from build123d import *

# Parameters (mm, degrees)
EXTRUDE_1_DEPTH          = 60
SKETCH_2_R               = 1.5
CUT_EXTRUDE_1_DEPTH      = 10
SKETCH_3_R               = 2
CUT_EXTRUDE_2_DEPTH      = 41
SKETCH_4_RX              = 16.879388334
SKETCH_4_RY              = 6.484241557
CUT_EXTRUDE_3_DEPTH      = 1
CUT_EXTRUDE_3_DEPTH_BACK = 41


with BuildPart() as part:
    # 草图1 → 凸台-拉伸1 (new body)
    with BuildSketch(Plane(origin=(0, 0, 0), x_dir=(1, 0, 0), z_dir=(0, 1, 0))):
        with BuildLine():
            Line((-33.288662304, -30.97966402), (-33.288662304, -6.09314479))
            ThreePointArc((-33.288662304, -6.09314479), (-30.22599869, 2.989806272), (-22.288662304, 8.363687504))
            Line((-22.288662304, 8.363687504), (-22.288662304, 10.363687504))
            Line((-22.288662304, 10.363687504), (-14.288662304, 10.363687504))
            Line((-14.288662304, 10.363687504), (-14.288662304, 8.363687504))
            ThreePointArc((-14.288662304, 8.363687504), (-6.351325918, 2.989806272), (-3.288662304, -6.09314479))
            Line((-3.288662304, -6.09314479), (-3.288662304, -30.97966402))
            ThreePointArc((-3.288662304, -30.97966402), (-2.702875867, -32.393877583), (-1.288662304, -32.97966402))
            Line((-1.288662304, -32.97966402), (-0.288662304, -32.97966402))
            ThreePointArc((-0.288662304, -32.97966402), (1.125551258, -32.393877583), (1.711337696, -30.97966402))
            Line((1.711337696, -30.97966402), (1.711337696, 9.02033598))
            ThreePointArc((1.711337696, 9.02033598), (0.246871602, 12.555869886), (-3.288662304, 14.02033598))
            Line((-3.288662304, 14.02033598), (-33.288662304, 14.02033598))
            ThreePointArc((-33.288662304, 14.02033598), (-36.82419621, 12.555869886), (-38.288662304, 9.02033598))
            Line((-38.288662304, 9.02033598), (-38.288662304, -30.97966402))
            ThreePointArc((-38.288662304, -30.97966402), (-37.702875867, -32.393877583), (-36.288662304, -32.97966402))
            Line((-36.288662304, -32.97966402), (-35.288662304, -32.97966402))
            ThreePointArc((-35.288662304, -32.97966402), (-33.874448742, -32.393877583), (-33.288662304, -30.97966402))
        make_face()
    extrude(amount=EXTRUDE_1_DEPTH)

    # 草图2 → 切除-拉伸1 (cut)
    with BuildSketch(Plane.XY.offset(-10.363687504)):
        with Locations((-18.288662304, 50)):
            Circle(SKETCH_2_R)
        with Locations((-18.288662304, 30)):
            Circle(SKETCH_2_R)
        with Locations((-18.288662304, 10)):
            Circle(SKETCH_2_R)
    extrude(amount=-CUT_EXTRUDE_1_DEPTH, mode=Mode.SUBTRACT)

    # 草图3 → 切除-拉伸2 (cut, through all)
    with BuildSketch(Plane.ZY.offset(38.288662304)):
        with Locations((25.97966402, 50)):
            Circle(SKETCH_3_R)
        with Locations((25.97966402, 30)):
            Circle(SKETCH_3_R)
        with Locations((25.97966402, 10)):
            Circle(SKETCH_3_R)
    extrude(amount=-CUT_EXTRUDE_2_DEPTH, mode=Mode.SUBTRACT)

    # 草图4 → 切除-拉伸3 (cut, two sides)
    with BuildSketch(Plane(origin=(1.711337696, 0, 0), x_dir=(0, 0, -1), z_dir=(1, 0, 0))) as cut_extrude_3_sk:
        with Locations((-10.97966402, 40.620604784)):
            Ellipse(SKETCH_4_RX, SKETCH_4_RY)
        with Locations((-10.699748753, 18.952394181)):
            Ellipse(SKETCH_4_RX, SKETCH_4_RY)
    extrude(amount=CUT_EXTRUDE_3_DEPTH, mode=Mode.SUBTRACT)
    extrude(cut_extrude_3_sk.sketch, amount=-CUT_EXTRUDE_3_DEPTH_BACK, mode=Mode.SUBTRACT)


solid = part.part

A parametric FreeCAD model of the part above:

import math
import FreeCAD as App
import Part
import Sketcher

V = App.Vector

doc = App.newDocument("Part")
body = doc.addObject("PartDesign::Body", "Body")

sketch1 = doc.addObject("Sketcher::SketchObject", "Sketch")
body.addObject(sketch1)
sketch1.AttachmentSupport = (doc.XZ_Plane, [""])
sketch1.MapMode = "FlatFace"
sketch1.addGeometry(Part.LineSegment(V(-33.3, 31, 0), V(-33.3, 6.1, 0)), False)
sketch1.addGeometry(Part.ArcOfCircle(Part.Circle(V(-18.3, 6.1, 0), V(0, 0, 1), 15), math.radians(-180), math.radians(-105)), False)
sketch1.addGeometry(Part.LineSegment(V(-22.3, -8.4, 0), V(-22.3, -10.4, 0)), False)
sketch1.addGeometry(Part.LineSegment(V(-22.3, -10.4, 0), V(-14.3, -10.4, 0)), False)
sketch1.addGeometry(Part.LineSegment(V(-14.3, -10.4, 0), V(-14.3, -8.4, 0)), False)
sketch1.addGeometry(Part.ArcOfCircle(Part.Circle(V(-18.3, 6.1, 0), V(0, 0, 1), 15), math.radians(-75), math.radians(0)), False)
sketch1.addGeometry(Part.LineSegment(V(-3.3, 6.1, 0), V(-3.3, 31, 0)), False)
sketch1.addGeometry(Part.ArcOfCircle(Part.Circle(V(-1.3, 31, 0), V(0, 0, 1), 2), math.radians(90), math.radians(180)), False)
sketch1.addGeometry(Part.LineSegment(V(-1.3, 33, 0), V(-0.3, 33, 0)), False)
sketch1.addGeometry(Part.ArcOfCircle(Part.Circle(V(-0.3, 31, 0), V(0, 0, 1), 2), math.radians(0), math.radians(90)), False)
sketch1.addGeometry(Part.LineSegment(V(1.7, 31, 0), V(1.7, -9, 0)), False)
sketch1.addGeometry(Part.ArcOfCircle(Part.Circle(V(-3.3, -9, 0), V(0, 0, 1), 5), math.radians(-90), math.radians(0)), False)
sketch1.addGeometry(Part.LineSegment(V(-3.3, -14, 0), V(-33.3, -14, 0)), False)
sketch1.addGeometry(Part.ArcOfCircle(Part.Circle(V(-33.3, -9, 0), V(0, 0, 1), 5), math.radians(180), math.radians(270)), False)
sketch1.addGeometry(Part.LineSegment(V(-38.3, -9, 0), V(-38.3, 31, 0)), False)
sketch1.addGeometry(Part.ArcOfCircle(Part.Circle(V(-36.3, 31, 0), V(0, 0, 1), 2), math.radians(90), math.radians(180)), False)
sketch1.addGeometry(Part.LineSegment(V(-36.3, 33, 0), V(-35.3, 33, 0)), False)
sketch1.addGeometry(Part.ArcOfCircle(Part.Circle(V(-35.3, 31, 0), V(0, 0, 1), 2), math.radians(0), math.radians(90)), False)
sketch1.addConstraint(Sketcher.Constraint("Tangent", 0, 2, 1, 1))
sketch1.addConstraint(Sketcher.Constraint("Coincident", 1, 2, 2, 1))
sketch1.addConstraint(Sketcher.Constraint("Coincident", 2, 2, 3, 1))
sketch1.addConstraint(Sketcher.Constraint("Coincident", 3, 2, 4, 1))
sketch1.addConstraint(Sketcher.Constraint("Coincident", 4, 2, 5, 1))
sketch1.addConstraint(Sketcher.Constraint("Tangent", 5, 2, 6, 1))
sketch1.addConstraint(Sketcher.Constraint("Tangent", 6, 2, 7, 2))
sketch1.addConstraint(Sketcher.Constraint("Tangent", 7, 1, 8, 1))
sketch1.addConstraint(Sketcher.Constraint("Tangent", 8, 2, 9, 2))
sketch1.addConstraint(Sketcher.Constraint("Tangent", 9, 1, 10, 1))
sketch1.addConstraint(Sketcher.Constraint("Tangent", 10, 2, 11, 2))
sketch1.addConstraint(Sketcher.Constraint("Tangent", 11, 1, 12, 1))
sketch1.addConstraint(Sketcher.Constraint("Tangent", 12, 2, 13, 2))
sketch1.addConstraint(Sketcher.Constraint("Tangent", 13, 1, 14, 1))
sketch1.addConstraint(Sketcher.Constraint("Tangent", 14, 2, 15, 2))
sketch1.addConstraint(Sketcher.Constraint("Tangent", 15, 1, 16, 1))
sketch1.addConstraint(Sketcher.Constraint("Tangent", 16, 2, 17, 2))
sketch1.addConstraint(Sketcher.Constraint("Tangent", 17, 1, 0, 1))
sketch1.addConstraint(Sketcher.Constraint("Vertical", 0))
sketch1.addConstraint(Sketcher.Constraint("Vertical", 2))
sketch1.addConstraint(Sketcher.Constraint("Horizontal", 3))
sketch1.addConstraint(Sketcher.Constraint("Vertical", 4))
sketch1.addConstraint(Sketcher.Constraint("Vertical", 6))
sketch1.addConstraint(Sketcher.Constraint("Horizontal", 8))
sketch1.addConstraint(Sketcher.Constraint("Vertical", 10))
sketch1.addConstraint(Sketcher.Constraint("Horizontal", 12))
sketch1.addConstraint(Sketcher.Constraint("Vertical", 14))
sketch1.addConstraint(Sketcher.Constraint("Horizontal", 16))
sketch1.addConstraint(Sketcher.Constraint("Coincident", 5, 3, 1, 3))
sketch1.addConstraint(Sketcher.Constraint("Equal", 1, 5))
sketch1.addConstraint(Sketcher.Constraint("Equal", 7, 9))
sketch1.addConstraint(Sketcher.Constraint("Equal", 11, 13))
sketch1.addConstraint(Sketcher.Constraint("Equal", 9, 15))
sketch1.addConstraint(Sketcher.Constraint("Equal", 15, 17))
sketch1.addConstraint(Sketcher.Constraint("Horizontal", 9, 3, 15, 3))
sketch1.addConstraint(Sketcher.Constraint("Horizontal", 1, 2, 4, 2))
sketch1.addConstraint(Sketcher.Constraint("Vertical", 13, 3, 0, 2))
sketch1.addConstraint(Sketcher.Constraint("Vertical", 11, 3, 5, 2))
sketch1.addConstraint(Sketcher.Constraint("Radius", 1, 15.0))
sketch1.addConstraint(Sketcher.Constraint("Radius", 7, 2.0))
sketch1.addConstraint(Sketcher.Constraint("Radius", 11, 5.0))
sketch1.addConstraint(Sketcher.Constraint("DistanceX", 3, 1, 3, 2, 8.0))
sketch1.addConstraint(Sketcher.Constraint("DistanceY", 2, 2, 2, 1, 2.0))
sketch1.addConstraint(Sketcher.Constraint("DistanceY", 10, 2, 10, 1, 40.0))
sketch1.addConstraint(Sketcher.Constraint("DistanceY", 0, 2, 0, 1, 24.886519))
sketch1.addConstraint(Sketcher.Constraint("DistanceX", 1, 3, -1, 1, 18.288662))
sketch1.addConstraint(Sketcher.Constraint("DistanceY", -1, 1, 1, 3, 6.093145))
pad1 = doc.addObject("PartDesign::Pad", "Pad")
body.addObject(pad1)
pad1.Profile = sketch1
pad1.Length = 60
pad1.Reversed = True

sketch2 = doc.addObject("Sketcher::SketchObject", "Sketch001")
body.addObject(sketch2)
sketch2.AttachmentSupport = (doc.XY_Plane, [""])
sketch2.MapMode = "FlatFace"
sketch2.AttachmentOffset = App.Placement(V(0, 0, -10.363688), App.Rotation())
sketch2.addGeometry(Part.Circle(V(-18.3, 50, 0), V(0, 0, 1), 1.5), False)
sketch2.addGeometry(Part.Circle(V(-18.3, 30, 0), V(0, 0, 1), 1.5), False)
sketch2.addGeometry(Part.Circle(V(-18.3, 10, 0), V(0, 0, 1), 1.5), False)
sketch2.addConstraint(Sketcher.Constraint("Equal", 0, 1))
sketch2.addConstraint(Sketcher.Constraint("Equal", 1, 2))
sketch2.addConstraint(Sketcher.Constraint("Vertical", 0, 3, 1, 3))
sketch2.addConstraint(Sketcher.Constraint("Vertical", 1, 3, 2, 3))
sketch2.addConstraint(Sketcher.Constraint("Diameter", 0, 3.0))
sketch2.addConstraint(Sketcher.Constraint("DistanceY", -1, 1, 0, 3, 50.0))
sketch2.addConstraint(Sketcher.Constraint("DistanceY", -1, 1, 1, 3, 30.0))
sketch2.addConstraint(Sketcher.Constraint("DistanceY", -1, 1, 2, 3, 10.0))
sketch2.addConstraint(Sketcher.Constraint("DistanceX", 0, 3, -1, 1, 18.288662))
pocket1 = doc.addObject("PartDesign::Pocket", "Pocket")
body.addObject(pocket1)
pocket1.Profile = sketch2
pocket1.Length = 10

sketch3 = doc.addObject("Sketcher::SketchObject", "Sketch002")
body.addObject(sketch3)
sketch3.AttachmentSupport = (doc.YZ_Plane, [""])
sketch3.MapMode = "FlatFace"
sketch3.AttachmentOffset = App.Placement(V(0, 0, -38.288662), App.Rotation())
sketch3.addGeometry(Part.Circle(V(50, 26, 0), V(0, 0, 1), 2), False)
sketch3.addGeometry(Part.Circle(V(30, 26, 0), V(0, 0, 1), 2), False)
sketch3.addGeometry(Part.Circle(V(10, 26, 0), V(0, 0, 1), 2), False)
sketch3.addConstraint(Sketcher.Constraint("Equal", 0, 1))
sketch3.addConstraint(Sketcher.Constraint("Equal", 1, 2))
sketch3.addConstraint(Sketcher.Constraint("Horizontal", 0, 3, 1, 3))
sketch3.addConstraint(Sketcher.Constraint("Horizontal", 1, 3, 2, 3))
sketch3.addConstraint(Sketcher.Constraint("Diameter", 0, 4.0))
sketch3.addConstraint(Sketcher.Constraint("DistanceX", -1, 1, 0, 3, 50.0))
sketch3.addConstraint(Sketcher.Constraint("DistanceX", -1, 1, 1, 3, 30.0))
sketch3.addConstraint(Sketcher.Constraint("DistanceX", -1, 1, 2, 3, 10.0))
sketch3.addConstraint(Sketcher.Constraint("DistanceY", -1, 1, 0, 3, 25.979664))
pocket2 = doc.addObject("PartDesign::Pocket", "Pocket001")
body.addObject(pocket2)
pocket2.Profile = sketch3
pocket2.Type = "ThroughAll"
pocket2.Reversed = True

sketch4 = doc.addObject("Sketcher::SketchObject", "Sketch003")
body.addObject(sketch4)
sketch4.AttachmentSupport = (doc.YZ_Plane, [""])
sketch4.MapMode = "FlatFace"
sketch4.AttachmentOffset = App.Placement(V(0, 0, 1.711338), App.Rotation())
sketch4.addGeometry(Part.Ellipse(V(40.620605, -5.899724, 0), V(47.104846, 10.979664, 0), V(40.620605, 10.979664, 0)), False)
sketch4.addGeometry(Part.Ellipse(V(18.952394, -6.17964, 0), V(25.436636, 10.699749, 0), V(18.952394, 10.699749, 0)), False)
sketch4.addConstraint(Sketcher.Constraint("Block", 0))
sketch4.addConstraint(Sketcher.Constraint("Block", 1))
pocket3 = doc.addObject("PartDesign::Pocket", "Pocket002")
body.addObject(pocket3)
pocket3.Profile = sketch4
pocket3.Type = "ThroughAll"
pocket3.Midplane = True

doc.recompute()
